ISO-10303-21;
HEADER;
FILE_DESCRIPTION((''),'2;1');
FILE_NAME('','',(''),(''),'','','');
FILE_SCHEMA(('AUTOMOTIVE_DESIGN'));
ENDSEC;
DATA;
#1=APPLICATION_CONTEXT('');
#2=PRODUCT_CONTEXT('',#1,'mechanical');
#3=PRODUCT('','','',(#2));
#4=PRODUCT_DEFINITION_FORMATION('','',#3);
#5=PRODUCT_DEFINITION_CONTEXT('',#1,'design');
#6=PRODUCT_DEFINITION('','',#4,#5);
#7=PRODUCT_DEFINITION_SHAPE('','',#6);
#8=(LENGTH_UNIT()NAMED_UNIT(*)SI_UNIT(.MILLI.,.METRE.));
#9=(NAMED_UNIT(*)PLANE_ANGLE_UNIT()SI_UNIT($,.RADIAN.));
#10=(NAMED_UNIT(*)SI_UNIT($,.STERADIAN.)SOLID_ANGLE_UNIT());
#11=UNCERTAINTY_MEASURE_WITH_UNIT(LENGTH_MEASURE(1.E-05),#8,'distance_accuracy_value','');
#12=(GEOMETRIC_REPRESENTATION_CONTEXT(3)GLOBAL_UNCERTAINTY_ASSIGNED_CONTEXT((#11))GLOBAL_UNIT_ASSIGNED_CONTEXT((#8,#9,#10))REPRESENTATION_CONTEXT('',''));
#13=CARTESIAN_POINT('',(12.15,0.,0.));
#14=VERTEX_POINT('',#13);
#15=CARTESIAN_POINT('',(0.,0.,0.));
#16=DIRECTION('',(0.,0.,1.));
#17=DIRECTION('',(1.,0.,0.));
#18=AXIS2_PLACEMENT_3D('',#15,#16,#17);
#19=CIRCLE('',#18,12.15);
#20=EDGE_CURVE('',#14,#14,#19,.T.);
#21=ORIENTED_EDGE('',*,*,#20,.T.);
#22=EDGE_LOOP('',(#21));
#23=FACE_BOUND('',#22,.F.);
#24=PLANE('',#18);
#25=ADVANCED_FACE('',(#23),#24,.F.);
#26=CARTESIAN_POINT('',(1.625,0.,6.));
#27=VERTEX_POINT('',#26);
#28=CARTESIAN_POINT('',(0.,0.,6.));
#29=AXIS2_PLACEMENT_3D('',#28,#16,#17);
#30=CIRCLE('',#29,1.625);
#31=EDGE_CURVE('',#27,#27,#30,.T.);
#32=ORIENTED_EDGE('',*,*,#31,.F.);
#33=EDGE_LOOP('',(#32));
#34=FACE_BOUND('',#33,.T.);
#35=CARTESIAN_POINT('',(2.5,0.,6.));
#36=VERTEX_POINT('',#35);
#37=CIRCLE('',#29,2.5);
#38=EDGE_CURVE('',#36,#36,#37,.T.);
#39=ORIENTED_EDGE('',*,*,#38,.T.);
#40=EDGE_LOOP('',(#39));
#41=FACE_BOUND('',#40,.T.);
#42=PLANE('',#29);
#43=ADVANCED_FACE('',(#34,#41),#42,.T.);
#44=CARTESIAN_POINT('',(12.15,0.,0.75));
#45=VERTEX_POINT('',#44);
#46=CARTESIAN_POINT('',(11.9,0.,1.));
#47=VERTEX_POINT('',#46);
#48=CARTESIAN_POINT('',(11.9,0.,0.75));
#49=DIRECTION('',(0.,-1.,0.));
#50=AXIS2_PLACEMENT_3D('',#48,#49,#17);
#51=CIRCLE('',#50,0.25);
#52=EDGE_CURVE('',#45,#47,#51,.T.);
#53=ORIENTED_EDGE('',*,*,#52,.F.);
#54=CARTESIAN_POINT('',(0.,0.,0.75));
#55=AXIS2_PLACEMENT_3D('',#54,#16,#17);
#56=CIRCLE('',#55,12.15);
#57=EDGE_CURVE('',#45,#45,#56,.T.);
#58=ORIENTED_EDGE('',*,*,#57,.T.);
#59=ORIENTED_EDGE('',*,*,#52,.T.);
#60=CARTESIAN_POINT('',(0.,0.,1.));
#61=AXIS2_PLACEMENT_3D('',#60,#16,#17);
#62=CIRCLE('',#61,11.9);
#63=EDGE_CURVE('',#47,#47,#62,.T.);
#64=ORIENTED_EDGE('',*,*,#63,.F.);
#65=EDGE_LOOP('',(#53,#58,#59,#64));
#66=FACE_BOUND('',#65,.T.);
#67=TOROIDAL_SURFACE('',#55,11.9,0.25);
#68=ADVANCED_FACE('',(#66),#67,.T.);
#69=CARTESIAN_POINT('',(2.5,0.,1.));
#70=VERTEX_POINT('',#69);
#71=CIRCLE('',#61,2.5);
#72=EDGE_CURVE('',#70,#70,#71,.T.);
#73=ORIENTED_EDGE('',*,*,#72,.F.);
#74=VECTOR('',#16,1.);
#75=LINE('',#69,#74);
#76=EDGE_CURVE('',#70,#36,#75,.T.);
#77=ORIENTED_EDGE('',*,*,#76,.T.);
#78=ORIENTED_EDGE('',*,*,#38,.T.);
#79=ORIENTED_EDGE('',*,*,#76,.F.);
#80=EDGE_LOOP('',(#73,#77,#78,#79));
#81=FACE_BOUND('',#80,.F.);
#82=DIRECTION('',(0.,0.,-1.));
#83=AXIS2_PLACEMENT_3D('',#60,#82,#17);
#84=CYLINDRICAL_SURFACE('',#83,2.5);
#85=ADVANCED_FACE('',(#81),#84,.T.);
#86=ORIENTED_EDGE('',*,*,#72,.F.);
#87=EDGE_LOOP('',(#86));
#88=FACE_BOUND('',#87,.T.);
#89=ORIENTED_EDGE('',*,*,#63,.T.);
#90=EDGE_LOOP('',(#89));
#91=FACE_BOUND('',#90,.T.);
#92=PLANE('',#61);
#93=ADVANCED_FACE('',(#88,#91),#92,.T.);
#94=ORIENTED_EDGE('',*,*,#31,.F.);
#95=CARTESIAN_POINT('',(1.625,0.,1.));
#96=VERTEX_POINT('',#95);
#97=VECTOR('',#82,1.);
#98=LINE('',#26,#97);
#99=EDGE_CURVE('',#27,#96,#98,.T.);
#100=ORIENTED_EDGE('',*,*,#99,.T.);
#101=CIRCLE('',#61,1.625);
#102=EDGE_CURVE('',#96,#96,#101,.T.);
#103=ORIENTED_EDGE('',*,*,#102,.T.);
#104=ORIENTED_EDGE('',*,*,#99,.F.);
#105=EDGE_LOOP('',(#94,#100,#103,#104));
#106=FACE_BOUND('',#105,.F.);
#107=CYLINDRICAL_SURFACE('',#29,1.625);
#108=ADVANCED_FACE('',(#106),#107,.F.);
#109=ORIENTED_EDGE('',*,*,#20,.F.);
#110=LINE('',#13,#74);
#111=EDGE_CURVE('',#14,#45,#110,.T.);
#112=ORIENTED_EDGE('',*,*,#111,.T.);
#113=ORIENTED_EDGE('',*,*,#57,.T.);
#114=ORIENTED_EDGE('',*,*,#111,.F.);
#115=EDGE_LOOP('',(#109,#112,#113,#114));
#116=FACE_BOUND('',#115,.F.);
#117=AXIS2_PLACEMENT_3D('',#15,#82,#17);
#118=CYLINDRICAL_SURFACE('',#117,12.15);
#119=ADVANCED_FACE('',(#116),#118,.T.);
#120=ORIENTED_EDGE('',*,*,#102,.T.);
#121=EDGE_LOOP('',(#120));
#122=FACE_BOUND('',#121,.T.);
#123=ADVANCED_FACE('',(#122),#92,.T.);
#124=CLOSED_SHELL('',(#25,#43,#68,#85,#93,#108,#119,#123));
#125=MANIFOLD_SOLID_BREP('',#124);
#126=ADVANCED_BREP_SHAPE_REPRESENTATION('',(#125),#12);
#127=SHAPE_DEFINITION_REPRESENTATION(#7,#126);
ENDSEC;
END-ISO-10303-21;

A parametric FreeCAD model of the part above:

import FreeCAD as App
import Part
import Sketcher
Q = App.Units.Quantity


def edges_at(feature, points):
    """Names of the edges that pass closest to the given points."""
    edges = feature.Shape.Edges
    near = lambda p: min(range(len(edges)), key=lambda i: edges[i].distToShape(Part.Vertex(*p))[0])
    return sorted({f"Edge{near(p) + 1}" for p in points})

doc = App.newDocument("Part")
params = doc.addObject("Spreadsheet::Sheet", "Params")
for row, (alias, value) in enumerate([
    ("sketch1_diameter", "24.3 mm"),
    ("pad1_length", "1 mm"),
    ("fillet_radius", "0.25 mm"),
    ("sketch2_diameter", "5 mm"),
    ("pad2_length", "5 mm"),
    ("sketch3_diameter", "3.25 mm"),
    ("pocket1_length", "5 mm"),
], start=1):
    params.set(f"A{row}", alias)
    params.set(f"B{row}", "=" + value)
    params.setAlias(f"B{row}", alias)

body = doc.addObject("PartDesign::Body", "Body")

# Sketch on XY plane
sketch1 = doc.addObject("Sketcher::SketchObject", "Sketch")
body.addObject(sketch1)
sketch1.AttachmentSupport = (doc.XY_Plane, [""])
sketch1.MapMode = "FlatFace"
sketch1.addGeometry(Part.Circle(App.Vector(0, 0, 0), App.Vector(0, 0, 1), 12.15), False)
sketch1.addConstraint([
    Sketcher.Constraint("Coincident", 0, 3, -1, 1),
    Sketcher.Constraint("Diameter", 0, Q("24.3 mm")),
])
sketch1.setExpression("Constraints[1]", "Params.sketch1_diameter")
pad1 = doc.addObject("PartDesign::Pad", "Pad")
body.addObject(pad1)
pad1.Profile = sketch1
pad1.setExpression("Length", "Params.pad1_length")
doc.recompute()

fillet = doc.addObject("PartDesign::Fillet", "Fillet")
body.addObject(fillet)
fillet.Base = (pad1, edges_at(pad1, [(-12.15, 0, 1)]))
fillet.setExpression("Radius", "Params.fillet_radius")

# Sketch on XY plane
sketch2 = doc.addObject("Sketcher::SketchObject", "Sketch001")
body.addObject(sketch2)
sketch2.AttachmentSupport = (doc.XY_Plane, [""])
sketch2.MapMode = "FlatFace"
sketch2.AttachmentOffset = App.Placement(App.Vector(0, 0, 1), App.Rotation())
sketch2.addGeometry(Part.Circle(App.Vector(0, 0, 0), App.Vector(0, 0, 1), 2.5), False)
sketch2.addConstraint([
    Sketcher.Constraint("Coincident", 0, 3, -1, 1),
    Sketcher.Constraint("Diameter", 0, Q("5 mm")),
])
sketch2.setExpression("Constraints[1]", "Params.sketch2_diameter")
pad2 = doc.addObject("PartDesign::Pad", "Pad001")
body.addObject(pad2)
pad2.Profile = sketch2
pad2.setExpression("Length", "Params.pad2_length")

# Sketch on XY plane
sketch3 = doc.addObject("Sketcher::SketchObject", "Sketch002")
body.addObject(sketch3)
sketch3.AttachmentSupport = (doc.XY_Plane, [""])
sketch3.MapMode = "FlatFace"
sketch3.AttachmentOffset = App.Placement(App.Vector(0, 0, 6), App.Rotation())
sketch3.addGeometry(Part.Circle(App.Vector(0, 0, 0), App.Vector(0, 0, 1), 1.625), False)
sketch3.addConstraint([
    Sketcher.Constraint("Coincident", 0, 3, -1, 1),
    Sketcher.Constraint("Diameter", 0, Q("3.25 mm")),
])
sketch3.setExpression("Constraints[1]", "Params.sketch3_diameter")
pocket1 = doc.addObject("PartDesign::Pocket", "Pocket")
body.addObject(pocket1)
pocket1.Profile = sketch3
pocket1.setExpression("Length", "Params.pocket1_length")

doc.recompute()
